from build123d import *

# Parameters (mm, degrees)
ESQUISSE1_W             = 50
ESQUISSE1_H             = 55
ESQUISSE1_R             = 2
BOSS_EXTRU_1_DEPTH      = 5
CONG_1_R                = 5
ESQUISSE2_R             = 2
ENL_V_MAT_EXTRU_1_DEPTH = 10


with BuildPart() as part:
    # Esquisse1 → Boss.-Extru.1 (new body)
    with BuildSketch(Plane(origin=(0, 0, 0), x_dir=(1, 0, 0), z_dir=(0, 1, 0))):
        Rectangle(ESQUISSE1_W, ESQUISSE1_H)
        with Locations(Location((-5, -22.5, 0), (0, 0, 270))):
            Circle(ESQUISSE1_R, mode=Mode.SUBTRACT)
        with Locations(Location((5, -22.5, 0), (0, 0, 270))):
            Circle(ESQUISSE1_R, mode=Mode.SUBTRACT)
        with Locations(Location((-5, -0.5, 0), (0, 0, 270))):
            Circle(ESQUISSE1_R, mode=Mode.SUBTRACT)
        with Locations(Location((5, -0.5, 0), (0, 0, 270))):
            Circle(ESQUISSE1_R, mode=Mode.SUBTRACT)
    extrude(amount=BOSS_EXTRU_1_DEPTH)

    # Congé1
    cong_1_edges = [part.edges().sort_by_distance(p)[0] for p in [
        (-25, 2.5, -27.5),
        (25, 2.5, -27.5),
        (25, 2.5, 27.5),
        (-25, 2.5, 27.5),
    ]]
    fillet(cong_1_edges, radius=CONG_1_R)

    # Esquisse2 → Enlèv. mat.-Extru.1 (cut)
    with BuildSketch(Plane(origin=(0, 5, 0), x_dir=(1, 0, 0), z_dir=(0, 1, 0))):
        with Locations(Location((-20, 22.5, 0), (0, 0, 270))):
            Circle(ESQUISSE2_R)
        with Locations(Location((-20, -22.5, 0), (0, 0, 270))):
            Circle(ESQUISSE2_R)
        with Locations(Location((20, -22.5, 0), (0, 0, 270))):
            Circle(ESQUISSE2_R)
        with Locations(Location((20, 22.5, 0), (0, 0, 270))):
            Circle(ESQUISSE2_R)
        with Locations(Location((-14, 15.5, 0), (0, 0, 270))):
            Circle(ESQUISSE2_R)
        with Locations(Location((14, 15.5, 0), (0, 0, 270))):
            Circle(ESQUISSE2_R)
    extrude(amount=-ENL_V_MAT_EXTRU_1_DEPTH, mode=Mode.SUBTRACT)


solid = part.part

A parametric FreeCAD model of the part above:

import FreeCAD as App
import Part
import Sketcher


def edges_at(feature, points):
    """Names of the edges that pass closest to the given points."""
    edges = feature.Shape.Edges
    near = lambda p: min(range(len(edges)), key=lambda i: edges[i].distToShape(Part.Vertex(*p))[0])
    return sorted({f"Edge{near(p) + 1}" for p in points})


def add_polygon(sketch, points):
    """Adds a closed chain of lines whose ends are joined by coincident constraints."""
    first, n = sketch.GeometryCount, len(points)
    for a, b in zip(points, points[1:] + points[:1]):
        sketch.addGeometry(Part.LineSegment(App.Vector(*a, 0), App.Vector(*b, 0)), False)
    for i in range(n):
        sketch.addConstraint(Sketcher.Constraint("Coincident", first + i, 2, first + (i + 1) % n, 1))

doc = App.newDocument("Part")
params = doc.addObject("Spreadsheet::Sheet", "Params")
for row, (alias, value) in enumerate([
    ("sketch1_diameter", "4 mm"),
    ("sketch1_width", "50 mm"),
    ("sketch1_height", "55 mm"),
    ("pad1_length", "5 mm"),
    ("fillet_radius", "5 mm"),
    ("sketch2_diameter", "4 mm"),
    ("pocket1_length", "10 mm"),
], start=1):
    params.set(f"A{row}", alias)
    params.set(f"B{row}", "=" + value)
    params.setAlias(f"B{row}", alias)

body = doc.addObject("PartDesign::Body", "Body")

sketch1 = body.newObject("Sketcher::SketchObject", "Sketch")
sketch1.AttachmentSupport = (doc.getObject("XZ_Plane"), [""])
sketch1.MapMode = "FlatFace"
add_polygon(sketch1, [(-25, -27.5), (-25, 27.5), (25, 27.5), (25, -27.5)])
sketch1.addGeometry(Part.Circle(App.Vector(-5, 22.5, 0), App.Vector(0, 0, 1), 2), False)
sketch1.addGeometry(Part.Circle(App.Vector(5, 22.5, 0), App.Vector(0, 0, 1), 2), False)
sketch1.addGeometry(Part.Circle(App.Vector(-5, 0.5, 0), App.Vector(0, 0, 1), 2), False)
sketch1.addGeometry(Part.Circle(App.Vector(5, 0.5, 0), App.Vector(0, 0, 1), 2), False)
sketch1.addConstraint(Sketcher.Constraint("Vertical", 0))
sketch1.addConstraint(Sketcher.Constraint("Horizontal", 1))
sketch1.addConstraint(Sketcher.Constraint("Vertical", 2))
sketch1.addConstraint(Sketcher.Constraint("Horizontal", 3))
sketch1.addConstraint(Sketcher.Constraint("Equal", 4, 5))
sketch1.addConstraint(Sketcher.Constraint("Equal", 5, 6))
sketch1.addConstraint(Sketcher.Constraint("Equal", 6, 7))
sketch1.addConstraint(Sketcher.Constraint("Symmetric", 0, 2, 2, 2, -1, 1))
sketch1.addConstraint(Sketcher.Constraint("Symmetric", 4, 3, 5, 3, -2))
sketch1.addConstraint(Sketcher.Constraint("Symmetric", 6, 3, 7, 3, -2))
sketch1.addConstraint(Sketcher.Constraint("Vertical", 4, 3, 6, 3))
sketch1.addConstraint(Sketcher.Constraint("Diameter", 4, 4.0))
sketch1.addConstraint(Sketcher.Constraint("DistanceX", 1, 1, 1, 2, 50.0))
sketch1.addConstraint(Sketcher.Constraint("DistanceY", 0, 1, 0, 2, 55.0))
sketch1.addConstraint(Sketcher.Constraint("DistanceX", 4, 3, -1, 1, 5.0))
sketch1.addConstraint(Sketcher.Constraint("DistanceY", 6, 3, 4, 3, 22.0))
sketch1.addConstraint(Sketcher.Constraint("DistanceY", 4, 3, 0, 2, 5.0))
sketch1.setExpression("Constraints[15]", "Params.sketch1_diameter")
sketch1.setExpression("Constraints[16]", "Params.sketch1_width")
sketch1.setExpression("Constraints[17]", "Params.sketch1_height")
pad1 = body.newObject("PartDesign::Pad", "Pad")
pad1.Profile = sketch1
pad1.setExpression("Length", "Params.pad1_length")
pad1.Reversed = True
doc.recompute()

fillet = body.newObject("PartDesign::Fillet", "Fillet")
fillet.Base = (pad1, edges_at(pad1, [
    (-25, 2.5, -27.5),
    (25, 2.5, -27.5),
    (25, 2.5, 27.5),
    (-25, 2.5, 27.5),
]))
fillet.setExpression("Radius", "Params.fillet_radius")

sketch2 = body.newObject("Sketcher::SketchObject", "Sketch001")
sketch2.AttachmentSupport = (doc.getObject("XZ_Plane"), [""])
sketch2.MapMode = "FlatFace"
sketch2.AttachmentOffset = App.Placement(App.Vector(0, 0, -5), App.Rotation())
sketch2.addGeometry(Part.Circle(App.Vector(-20, -22.5, 0), App.Vector(0, 0, 1), 2), False)
sketch2.addGeometry(Part.Circle(App.Vector(-20, 22.5, 0), App.Vector(0, 0, 1), 2), False)
sketch2.addGeometry(Part.Circle(App.Vector(20, 22.5, 0), App.Vector(0, 0, 1), 2), False)
sketch2.addGeometry(Part.Circle(App.Vector(20, -22.5, 0), App.Vector(0, 0, 1), 2), False)
sketch2.addGeometry(Part.Circle(App.Vector(-14, -15.5, 0), App.Vector(0, 0, 1), 2), False)
sketch2.addGeometry(Part.Circle(App.Vector(14, -15.5, 0), App.Vector(0, 0, 1), 2), False)
sketch2.addConstraint(Sketcher.Constraint("Equal", 0, 1))
sketch2.addConstraint(Sketcher.Constraint("Equal", 1, 2))
sketch2.addConstraint(Sketcher.Constraint("Equal", 2, 3))
sketch2.addConstraint(Sketcher.Constraint("Equal", 3, 4))
sketch2.addConstraint(Sketcher.Constraint("Equal", 4, 5))
sketch2.addConstraint(Sketcher.Constraint("Symmetric", 0, 3, 2, 3, -1, 1))
sketch2.addConstraint(Sketcher.Constraint("Symmetric", 1, 3, 3, 3, -1, 1))
sketch2.addConstraint(Sketcher.Constraint("Symmetric", 1, 3, 2, 3, -2))
sketch2.addConstraint(Sketcher.Constraint("Symmetric", 4, 3, 5, 3, -2))
sketch2.addConstraint(Sketcher.Constraint("Diameter", 0, 4.0))
sketch2.addConstraint(Sketcher.Constraint("DistanceX", 0, 3, -1, 1, 20.0))
sketch2.addConstraint(Sketcher.Constraint("DistanceX", 4, 3, -1, 1, 14.0))
sketch2.addConstraint(Sketcher.Constraint("DistanceY", 0, 3, 1, 3, 45.0))
sketch2.addConstraint(Sketcher.Constraint("DistanceY", 0, 3, 4, 3, 7.0))
sketch2.setExpression("Constraints[9]", "Params.sketch2_diameter")
pocket1 = body.newObject("PartDesign::Pocket", "Pocket")
pocket1.Profile = sketch2
pocket1.setExpression("Length", "Params.pocket1_length")
pocket1.Reversed = True

doc.recompute()
